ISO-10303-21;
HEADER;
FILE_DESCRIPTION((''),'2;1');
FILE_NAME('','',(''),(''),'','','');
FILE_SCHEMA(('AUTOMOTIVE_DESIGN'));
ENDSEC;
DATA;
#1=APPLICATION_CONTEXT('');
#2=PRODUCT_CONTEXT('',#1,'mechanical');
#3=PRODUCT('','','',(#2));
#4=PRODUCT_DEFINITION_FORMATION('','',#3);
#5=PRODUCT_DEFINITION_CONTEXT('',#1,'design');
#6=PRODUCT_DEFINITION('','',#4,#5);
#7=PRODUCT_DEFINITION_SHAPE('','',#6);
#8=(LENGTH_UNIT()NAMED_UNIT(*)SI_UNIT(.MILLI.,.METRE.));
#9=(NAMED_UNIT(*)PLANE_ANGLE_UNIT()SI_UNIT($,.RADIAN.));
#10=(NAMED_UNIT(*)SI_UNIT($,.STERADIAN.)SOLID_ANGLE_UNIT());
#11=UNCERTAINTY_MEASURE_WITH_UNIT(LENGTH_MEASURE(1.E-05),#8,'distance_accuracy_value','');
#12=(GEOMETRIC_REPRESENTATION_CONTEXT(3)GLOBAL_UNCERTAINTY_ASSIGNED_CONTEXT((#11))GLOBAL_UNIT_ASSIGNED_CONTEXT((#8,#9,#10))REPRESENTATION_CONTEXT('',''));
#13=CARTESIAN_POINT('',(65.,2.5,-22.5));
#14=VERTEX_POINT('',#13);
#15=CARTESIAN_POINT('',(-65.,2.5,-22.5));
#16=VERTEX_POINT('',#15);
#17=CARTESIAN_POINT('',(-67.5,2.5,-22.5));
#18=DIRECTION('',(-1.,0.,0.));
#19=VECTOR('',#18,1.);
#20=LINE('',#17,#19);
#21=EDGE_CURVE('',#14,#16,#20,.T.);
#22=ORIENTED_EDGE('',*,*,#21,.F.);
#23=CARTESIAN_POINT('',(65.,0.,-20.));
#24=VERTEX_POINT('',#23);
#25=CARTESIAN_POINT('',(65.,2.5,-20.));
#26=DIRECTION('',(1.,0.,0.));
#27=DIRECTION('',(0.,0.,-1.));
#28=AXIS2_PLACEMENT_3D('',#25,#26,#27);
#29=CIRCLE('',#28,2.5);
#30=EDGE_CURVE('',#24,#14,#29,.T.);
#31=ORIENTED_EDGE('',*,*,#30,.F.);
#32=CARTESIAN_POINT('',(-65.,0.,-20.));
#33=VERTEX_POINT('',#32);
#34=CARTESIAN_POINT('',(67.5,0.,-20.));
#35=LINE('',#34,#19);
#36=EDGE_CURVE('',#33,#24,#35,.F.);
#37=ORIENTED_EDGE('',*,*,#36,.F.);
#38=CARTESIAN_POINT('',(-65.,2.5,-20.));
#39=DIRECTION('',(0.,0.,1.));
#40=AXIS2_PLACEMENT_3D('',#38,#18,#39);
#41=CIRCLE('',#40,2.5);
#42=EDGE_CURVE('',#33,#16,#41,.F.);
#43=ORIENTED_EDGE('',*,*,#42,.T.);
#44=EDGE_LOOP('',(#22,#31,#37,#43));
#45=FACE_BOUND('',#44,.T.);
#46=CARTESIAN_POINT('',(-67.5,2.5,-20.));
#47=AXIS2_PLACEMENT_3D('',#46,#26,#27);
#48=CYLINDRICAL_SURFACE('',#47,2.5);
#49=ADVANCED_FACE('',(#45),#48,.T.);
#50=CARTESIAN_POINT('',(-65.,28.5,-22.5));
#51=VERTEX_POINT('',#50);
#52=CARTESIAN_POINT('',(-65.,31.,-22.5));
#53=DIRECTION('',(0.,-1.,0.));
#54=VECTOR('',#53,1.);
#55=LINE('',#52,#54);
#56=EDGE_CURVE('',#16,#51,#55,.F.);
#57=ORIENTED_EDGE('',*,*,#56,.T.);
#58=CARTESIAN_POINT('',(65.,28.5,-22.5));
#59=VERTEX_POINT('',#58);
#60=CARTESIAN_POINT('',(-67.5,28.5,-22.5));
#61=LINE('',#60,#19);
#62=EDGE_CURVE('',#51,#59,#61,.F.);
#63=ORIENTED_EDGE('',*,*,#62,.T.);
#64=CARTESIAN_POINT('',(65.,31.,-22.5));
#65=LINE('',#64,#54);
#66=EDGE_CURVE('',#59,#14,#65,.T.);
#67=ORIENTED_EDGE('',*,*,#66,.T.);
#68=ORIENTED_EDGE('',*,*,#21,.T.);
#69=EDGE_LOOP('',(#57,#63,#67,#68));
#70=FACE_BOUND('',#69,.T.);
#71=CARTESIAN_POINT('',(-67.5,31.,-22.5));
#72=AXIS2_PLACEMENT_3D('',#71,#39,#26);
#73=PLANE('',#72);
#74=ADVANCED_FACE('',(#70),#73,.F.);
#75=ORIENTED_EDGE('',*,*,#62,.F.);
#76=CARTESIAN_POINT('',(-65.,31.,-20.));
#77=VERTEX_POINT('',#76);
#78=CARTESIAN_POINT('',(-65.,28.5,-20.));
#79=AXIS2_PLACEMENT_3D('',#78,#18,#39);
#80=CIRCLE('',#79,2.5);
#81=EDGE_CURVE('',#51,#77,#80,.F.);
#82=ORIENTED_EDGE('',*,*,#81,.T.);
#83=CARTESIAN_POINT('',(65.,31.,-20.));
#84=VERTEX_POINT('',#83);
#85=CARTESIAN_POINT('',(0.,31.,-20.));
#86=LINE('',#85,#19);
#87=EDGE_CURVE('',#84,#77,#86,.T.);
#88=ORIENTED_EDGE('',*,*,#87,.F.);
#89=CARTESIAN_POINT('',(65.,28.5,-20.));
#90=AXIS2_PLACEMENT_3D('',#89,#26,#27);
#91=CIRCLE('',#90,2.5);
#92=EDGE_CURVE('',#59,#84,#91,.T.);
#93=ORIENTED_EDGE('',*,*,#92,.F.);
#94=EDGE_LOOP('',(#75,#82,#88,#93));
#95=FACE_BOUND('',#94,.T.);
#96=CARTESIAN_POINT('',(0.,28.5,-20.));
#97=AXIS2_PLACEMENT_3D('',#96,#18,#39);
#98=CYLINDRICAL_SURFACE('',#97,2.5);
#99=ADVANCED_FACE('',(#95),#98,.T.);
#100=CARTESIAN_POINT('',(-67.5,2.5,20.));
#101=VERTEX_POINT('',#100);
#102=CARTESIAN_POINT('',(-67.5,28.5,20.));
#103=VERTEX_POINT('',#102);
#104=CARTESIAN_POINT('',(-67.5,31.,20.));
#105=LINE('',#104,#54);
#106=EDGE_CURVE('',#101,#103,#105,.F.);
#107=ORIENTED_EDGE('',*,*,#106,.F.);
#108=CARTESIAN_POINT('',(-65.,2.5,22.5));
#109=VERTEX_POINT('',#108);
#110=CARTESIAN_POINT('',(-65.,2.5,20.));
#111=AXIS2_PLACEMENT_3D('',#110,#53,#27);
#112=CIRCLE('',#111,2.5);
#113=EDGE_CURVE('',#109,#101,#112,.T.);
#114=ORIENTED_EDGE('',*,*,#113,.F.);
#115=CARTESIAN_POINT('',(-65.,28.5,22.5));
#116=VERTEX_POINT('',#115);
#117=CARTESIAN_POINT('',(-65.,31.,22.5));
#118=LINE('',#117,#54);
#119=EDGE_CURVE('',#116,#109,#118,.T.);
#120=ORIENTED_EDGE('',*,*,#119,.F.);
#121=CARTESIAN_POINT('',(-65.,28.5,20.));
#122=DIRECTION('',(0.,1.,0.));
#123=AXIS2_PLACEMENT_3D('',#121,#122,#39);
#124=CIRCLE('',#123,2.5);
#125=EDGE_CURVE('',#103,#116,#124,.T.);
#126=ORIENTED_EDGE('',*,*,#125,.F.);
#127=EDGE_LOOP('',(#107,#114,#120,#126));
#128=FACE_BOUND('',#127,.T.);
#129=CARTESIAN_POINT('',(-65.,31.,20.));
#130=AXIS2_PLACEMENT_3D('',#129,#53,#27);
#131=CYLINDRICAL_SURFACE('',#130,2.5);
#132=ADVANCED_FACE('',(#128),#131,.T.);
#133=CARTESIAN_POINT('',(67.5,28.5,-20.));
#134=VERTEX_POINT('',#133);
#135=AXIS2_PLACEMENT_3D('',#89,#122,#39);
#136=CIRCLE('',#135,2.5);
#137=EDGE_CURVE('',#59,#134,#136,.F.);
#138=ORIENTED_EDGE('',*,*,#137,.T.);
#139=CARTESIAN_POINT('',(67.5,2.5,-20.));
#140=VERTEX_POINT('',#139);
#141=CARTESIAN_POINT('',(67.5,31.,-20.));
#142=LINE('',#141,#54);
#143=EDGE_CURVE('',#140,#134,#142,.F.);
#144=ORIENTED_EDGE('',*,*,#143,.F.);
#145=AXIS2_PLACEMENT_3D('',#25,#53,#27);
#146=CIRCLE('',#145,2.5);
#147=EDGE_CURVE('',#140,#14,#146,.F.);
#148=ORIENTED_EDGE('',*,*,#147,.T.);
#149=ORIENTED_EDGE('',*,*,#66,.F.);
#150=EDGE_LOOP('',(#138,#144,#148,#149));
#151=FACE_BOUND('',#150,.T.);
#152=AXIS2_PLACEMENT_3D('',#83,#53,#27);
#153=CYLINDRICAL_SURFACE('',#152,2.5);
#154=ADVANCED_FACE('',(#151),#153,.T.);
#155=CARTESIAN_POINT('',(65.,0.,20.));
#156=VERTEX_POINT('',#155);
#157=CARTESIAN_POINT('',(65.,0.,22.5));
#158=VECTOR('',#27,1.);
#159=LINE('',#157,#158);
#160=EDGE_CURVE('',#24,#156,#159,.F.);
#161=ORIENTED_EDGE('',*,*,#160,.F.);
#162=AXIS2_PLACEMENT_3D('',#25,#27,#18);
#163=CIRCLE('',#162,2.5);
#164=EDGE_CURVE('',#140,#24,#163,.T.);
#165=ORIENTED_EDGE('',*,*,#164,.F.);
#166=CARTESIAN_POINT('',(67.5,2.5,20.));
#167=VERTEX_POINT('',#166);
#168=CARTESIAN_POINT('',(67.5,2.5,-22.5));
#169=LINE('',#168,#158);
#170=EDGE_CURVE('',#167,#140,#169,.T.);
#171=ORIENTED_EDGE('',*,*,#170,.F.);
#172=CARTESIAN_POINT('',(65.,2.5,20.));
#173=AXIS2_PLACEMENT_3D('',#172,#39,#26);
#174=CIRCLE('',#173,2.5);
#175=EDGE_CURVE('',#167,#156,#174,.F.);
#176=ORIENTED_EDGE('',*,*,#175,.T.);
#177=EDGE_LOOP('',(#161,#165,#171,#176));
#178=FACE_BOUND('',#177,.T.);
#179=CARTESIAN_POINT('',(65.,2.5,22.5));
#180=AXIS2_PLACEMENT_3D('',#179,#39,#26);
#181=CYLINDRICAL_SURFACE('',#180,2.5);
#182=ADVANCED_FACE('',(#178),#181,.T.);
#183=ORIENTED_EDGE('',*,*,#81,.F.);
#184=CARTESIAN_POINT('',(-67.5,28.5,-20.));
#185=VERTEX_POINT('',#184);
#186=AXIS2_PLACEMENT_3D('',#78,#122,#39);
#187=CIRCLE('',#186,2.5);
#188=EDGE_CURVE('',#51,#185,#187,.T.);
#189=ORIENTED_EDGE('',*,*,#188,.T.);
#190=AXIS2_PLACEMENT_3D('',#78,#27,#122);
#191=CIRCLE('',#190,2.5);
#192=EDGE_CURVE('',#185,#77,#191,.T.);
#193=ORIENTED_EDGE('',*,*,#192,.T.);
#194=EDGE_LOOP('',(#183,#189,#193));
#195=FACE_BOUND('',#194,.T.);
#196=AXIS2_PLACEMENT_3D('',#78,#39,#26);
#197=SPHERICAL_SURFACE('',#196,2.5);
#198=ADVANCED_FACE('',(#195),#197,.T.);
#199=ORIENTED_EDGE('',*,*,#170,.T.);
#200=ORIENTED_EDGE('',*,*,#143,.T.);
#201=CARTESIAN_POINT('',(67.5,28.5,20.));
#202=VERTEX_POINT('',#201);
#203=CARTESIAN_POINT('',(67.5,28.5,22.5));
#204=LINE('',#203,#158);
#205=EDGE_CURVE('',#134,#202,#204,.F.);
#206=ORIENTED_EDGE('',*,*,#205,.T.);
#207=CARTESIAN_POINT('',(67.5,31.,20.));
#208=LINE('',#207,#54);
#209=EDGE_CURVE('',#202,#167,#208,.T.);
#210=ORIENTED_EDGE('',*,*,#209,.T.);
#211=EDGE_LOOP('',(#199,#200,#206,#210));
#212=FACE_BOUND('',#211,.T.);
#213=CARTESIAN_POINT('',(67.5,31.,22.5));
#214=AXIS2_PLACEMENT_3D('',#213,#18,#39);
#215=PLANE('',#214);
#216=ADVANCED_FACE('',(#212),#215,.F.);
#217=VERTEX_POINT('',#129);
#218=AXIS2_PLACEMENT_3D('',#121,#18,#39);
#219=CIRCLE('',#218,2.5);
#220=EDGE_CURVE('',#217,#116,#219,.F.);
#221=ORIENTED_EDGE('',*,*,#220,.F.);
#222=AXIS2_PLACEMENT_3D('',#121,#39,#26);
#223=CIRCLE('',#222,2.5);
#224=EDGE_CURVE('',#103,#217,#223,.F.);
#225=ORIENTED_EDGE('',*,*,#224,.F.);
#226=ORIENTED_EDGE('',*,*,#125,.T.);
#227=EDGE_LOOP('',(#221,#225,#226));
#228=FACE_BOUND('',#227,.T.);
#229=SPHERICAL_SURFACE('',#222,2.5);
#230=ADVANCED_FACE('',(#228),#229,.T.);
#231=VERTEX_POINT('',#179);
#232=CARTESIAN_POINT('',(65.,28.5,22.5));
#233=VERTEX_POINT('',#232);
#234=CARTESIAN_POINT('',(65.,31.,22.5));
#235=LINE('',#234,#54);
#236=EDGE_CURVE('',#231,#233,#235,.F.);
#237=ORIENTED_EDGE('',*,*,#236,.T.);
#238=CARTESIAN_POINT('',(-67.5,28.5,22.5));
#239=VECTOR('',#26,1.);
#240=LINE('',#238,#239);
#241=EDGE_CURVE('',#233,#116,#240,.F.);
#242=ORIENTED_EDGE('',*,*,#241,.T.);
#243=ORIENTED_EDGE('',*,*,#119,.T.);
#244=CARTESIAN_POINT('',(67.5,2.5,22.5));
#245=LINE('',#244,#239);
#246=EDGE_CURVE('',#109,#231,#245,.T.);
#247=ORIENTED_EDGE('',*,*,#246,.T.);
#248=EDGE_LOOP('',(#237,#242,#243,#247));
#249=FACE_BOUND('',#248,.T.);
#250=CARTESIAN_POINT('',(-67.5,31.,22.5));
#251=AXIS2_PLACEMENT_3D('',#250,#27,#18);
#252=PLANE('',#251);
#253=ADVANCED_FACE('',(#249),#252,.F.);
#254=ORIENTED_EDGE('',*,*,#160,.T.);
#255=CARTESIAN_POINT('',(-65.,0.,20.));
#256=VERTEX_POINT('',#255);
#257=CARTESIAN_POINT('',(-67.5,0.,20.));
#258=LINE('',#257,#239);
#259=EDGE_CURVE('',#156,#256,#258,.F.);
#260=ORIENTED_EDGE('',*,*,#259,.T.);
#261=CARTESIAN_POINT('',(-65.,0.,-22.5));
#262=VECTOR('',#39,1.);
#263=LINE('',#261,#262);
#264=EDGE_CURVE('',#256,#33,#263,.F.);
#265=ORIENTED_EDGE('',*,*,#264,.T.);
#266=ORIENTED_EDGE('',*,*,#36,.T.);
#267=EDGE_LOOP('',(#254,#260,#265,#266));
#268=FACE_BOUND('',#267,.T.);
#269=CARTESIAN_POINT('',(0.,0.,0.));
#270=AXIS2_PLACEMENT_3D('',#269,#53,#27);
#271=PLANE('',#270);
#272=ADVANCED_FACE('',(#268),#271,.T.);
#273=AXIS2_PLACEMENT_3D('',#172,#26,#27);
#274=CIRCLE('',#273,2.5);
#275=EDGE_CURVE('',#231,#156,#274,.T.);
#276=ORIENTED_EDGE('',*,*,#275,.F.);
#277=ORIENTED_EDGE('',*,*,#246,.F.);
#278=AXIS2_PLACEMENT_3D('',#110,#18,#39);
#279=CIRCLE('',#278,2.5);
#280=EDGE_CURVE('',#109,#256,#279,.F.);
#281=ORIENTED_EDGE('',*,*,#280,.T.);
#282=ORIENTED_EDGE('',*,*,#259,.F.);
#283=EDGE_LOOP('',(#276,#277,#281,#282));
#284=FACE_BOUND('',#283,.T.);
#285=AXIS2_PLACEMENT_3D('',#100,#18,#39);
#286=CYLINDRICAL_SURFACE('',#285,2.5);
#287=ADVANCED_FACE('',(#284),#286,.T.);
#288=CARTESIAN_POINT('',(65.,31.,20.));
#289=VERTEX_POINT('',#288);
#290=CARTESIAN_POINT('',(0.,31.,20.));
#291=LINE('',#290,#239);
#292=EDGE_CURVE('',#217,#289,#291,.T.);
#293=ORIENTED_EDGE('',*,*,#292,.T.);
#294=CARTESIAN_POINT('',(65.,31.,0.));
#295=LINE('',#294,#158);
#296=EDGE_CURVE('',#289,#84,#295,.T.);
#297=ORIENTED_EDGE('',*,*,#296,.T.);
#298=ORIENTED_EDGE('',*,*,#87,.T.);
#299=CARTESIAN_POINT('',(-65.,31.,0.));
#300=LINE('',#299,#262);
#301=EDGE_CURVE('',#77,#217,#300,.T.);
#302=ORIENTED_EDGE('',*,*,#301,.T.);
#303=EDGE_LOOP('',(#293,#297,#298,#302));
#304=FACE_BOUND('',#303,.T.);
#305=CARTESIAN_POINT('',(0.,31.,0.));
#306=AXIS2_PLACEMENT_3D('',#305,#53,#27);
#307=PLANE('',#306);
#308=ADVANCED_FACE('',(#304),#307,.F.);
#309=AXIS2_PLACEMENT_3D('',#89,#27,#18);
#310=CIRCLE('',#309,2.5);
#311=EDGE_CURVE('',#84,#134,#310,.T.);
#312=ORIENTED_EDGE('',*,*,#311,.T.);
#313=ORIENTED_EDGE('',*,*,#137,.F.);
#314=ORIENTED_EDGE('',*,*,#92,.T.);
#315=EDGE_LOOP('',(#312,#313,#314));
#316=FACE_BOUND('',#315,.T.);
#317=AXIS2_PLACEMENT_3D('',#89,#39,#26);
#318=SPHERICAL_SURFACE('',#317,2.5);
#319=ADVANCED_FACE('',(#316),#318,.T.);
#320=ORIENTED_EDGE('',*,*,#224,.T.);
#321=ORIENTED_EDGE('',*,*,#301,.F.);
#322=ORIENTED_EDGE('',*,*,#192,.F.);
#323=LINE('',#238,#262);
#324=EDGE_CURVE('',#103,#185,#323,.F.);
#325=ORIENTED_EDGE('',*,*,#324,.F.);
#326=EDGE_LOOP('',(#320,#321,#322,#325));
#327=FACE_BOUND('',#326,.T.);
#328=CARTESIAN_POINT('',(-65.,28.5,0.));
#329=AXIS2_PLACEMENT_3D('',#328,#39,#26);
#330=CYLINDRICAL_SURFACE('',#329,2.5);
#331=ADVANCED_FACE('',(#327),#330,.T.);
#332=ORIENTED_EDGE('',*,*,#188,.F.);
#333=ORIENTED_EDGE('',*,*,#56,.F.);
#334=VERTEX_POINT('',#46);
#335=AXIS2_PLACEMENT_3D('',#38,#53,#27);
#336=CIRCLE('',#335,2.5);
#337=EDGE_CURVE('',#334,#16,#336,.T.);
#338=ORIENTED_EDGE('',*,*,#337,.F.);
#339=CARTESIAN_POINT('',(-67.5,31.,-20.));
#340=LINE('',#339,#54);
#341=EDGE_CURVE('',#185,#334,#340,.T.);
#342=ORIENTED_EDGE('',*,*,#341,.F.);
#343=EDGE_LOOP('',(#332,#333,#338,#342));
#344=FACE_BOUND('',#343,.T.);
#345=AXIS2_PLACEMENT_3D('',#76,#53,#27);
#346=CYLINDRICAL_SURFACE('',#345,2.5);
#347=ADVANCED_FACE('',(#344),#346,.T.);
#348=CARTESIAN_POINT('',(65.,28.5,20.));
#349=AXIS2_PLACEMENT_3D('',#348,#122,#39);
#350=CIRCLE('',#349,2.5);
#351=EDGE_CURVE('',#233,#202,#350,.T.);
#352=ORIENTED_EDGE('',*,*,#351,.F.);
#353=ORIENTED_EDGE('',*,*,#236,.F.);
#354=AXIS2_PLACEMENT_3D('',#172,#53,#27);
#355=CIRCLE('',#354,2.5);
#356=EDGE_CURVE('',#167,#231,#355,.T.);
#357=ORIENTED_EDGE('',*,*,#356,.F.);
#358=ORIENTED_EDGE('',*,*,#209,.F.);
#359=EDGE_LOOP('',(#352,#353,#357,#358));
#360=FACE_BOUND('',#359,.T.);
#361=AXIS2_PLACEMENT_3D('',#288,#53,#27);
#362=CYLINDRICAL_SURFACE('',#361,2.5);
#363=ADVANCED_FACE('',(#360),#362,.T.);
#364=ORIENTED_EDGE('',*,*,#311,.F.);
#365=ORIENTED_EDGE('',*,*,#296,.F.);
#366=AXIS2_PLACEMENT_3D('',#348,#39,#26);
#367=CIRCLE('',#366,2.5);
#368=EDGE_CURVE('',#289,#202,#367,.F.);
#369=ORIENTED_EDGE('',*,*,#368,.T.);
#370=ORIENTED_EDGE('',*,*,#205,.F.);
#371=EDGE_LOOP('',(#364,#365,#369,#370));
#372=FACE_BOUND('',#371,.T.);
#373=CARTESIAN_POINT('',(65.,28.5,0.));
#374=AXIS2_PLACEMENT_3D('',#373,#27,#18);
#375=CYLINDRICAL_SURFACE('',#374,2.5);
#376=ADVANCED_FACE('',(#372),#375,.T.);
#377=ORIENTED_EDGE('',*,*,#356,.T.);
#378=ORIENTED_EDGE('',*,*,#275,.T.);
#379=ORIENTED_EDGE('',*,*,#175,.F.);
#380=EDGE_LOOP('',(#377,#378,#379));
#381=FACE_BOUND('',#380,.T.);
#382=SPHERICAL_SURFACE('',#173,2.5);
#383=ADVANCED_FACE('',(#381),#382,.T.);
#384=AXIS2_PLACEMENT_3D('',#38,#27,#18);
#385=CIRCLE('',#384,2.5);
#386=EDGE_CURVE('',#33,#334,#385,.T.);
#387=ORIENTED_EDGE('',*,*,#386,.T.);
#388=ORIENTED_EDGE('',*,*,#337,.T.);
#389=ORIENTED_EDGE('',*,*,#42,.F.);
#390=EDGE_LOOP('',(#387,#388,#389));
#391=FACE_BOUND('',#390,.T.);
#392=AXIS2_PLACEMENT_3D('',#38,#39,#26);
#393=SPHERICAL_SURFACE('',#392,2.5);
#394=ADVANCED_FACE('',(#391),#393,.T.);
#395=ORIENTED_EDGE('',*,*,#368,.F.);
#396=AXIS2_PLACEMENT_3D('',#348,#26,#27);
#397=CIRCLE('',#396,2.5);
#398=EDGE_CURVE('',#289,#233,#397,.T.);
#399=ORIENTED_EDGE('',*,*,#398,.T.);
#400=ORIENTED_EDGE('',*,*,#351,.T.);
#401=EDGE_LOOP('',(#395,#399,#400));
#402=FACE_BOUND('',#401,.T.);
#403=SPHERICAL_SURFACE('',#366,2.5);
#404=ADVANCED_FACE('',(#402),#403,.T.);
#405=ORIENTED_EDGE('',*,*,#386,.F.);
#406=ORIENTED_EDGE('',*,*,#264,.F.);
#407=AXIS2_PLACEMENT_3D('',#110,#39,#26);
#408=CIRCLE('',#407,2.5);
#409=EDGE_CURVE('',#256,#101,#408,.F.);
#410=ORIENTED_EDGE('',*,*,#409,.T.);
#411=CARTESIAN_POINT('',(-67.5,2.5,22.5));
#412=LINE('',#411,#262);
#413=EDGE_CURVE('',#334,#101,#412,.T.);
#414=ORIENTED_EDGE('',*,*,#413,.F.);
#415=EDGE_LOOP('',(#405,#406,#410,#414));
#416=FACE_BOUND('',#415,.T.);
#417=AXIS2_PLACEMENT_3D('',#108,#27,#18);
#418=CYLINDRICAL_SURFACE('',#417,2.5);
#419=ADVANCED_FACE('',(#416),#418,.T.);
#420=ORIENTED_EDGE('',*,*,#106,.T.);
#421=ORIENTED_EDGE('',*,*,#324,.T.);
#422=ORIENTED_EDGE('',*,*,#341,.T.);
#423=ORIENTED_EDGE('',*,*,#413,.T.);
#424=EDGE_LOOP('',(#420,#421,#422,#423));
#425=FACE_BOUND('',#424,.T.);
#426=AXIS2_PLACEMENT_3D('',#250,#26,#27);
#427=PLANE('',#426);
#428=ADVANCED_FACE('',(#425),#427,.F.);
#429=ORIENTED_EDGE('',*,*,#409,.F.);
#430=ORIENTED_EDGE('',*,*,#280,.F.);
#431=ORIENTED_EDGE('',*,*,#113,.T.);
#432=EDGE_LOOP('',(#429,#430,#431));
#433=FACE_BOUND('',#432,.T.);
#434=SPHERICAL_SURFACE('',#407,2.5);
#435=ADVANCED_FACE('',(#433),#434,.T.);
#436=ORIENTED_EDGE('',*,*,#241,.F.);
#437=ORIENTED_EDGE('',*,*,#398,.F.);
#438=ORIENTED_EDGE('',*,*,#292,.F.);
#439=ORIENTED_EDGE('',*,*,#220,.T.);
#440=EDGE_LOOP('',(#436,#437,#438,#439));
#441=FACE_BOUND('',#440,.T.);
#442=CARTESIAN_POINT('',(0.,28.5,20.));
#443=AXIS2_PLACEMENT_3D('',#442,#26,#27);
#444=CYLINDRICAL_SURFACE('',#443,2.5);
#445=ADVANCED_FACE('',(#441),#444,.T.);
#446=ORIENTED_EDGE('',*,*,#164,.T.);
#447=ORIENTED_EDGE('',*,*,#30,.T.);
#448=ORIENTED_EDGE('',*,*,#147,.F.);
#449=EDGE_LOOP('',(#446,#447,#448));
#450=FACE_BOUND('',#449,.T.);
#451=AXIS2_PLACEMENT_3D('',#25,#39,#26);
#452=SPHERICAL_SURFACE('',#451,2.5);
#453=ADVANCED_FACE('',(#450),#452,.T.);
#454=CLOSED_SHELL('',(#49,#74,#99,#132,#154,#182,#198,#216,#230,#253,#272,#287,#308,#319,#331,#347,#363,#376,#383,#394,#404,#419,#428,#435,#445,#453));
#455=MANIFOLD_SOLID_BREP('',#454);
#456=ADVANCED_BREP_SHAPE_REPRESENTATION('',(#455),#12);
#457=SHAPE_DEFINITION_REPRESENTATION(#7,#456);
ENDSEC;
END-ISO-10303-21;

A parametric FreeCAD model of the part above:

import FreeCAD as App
import Part
import Sketcher

V = App.Vector
Q = App.Units.Quantity


def add_polygon(sketch, points):
    """Adds a closed chain of lines whose ends are joined by coincident constraints."""
    first, n = sketch.GeometryCount, len(points)
    for a, b in zip(points, points[1:] + points[:1]):
        sketch.addGeometry(Part.LineSegment(App.Vector(*a, 0), App.Vector(*b, 0)), False)
    for i in range(n):
        sketch.addConstraint(Sketcher.Constraint("Coincident", first + i, 2, first + (i + 1) % n, 1))

doc = App.newDocument("Part")
body = doc.addObject("PartDesign::Body", "Body")

sketch1 = doc.addObject("Sketcher::SketchObject", "Sketch")
body.addObject(sketch1)
sketch1.AttachmentSupport = (doc.XZ_Plane, [""])
sketch1.MapMode = "FlatFace"
add_polygon(sketch1, [(-67.5, -22.5), (-67.5, 22.5), (67.5, 22.5), (67.5, -22.5)])
sketch1.addConstraint([
    Sketcher.Constraint("Vertical", 0),
    Sketcher.Constraint("Horizontal", 1),
    Sketcher.Constraint("Vertical", 2),
    Sketcher.Constraint("Horizontal", 3),
    Sketcher.Constraint("Symmetric", 0, 2, 2, 2, -1, 1),
    Sketcher.Constraint("DistanceX", 1, 1, 1, 2, Q("135 mm")),
    Sketcher.Constraint("DistanceY", 0, 1, 0, 2, Q("45 mm")),
])
pad1 = doc.addObject("PartDesign::Pad", "Pad")
body.addObject(pad1)
pad1.Profile = sketch1
pad1.Length = 31
pad1.Reversed = True
doc.recompute()

fillet = doc.addObject("PartDesign::Fillet", "Fillet")
body.addObject(fillet)
fillet.Base = (pad1, ["Edge1"])
fillet.UseAllEdges = True
fillet.Radius = 2.5

doc.recompute()
